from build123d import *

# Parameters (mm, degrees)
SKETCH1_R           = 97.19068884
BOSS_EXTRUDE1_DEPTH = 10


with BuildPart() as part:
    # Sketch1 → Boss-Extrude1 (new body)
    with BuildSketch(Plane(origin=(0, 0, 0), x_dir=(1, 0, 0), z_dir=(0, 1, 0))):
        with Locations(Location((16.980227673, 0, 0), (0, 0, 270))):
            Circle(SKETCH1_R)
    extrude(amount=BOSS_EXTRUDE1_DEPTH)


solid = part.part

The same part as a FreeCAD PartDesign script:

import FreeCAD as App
import Part
import Sketcher

V = App.Vector

doc = App.newDocument("Part")
body = doc.addObject("PartDesign::Body", "Body")

# Sketch on XZ plane
sketch1 = body.newObject("Sketcher::SketchObject", "Sketch")
sketch1.AttachmentSupport = (doc.getObject("XZ_Plane"), [""])
sketch1.MapMode = "FlatFace"
sketch1.addGeometry(Part.Circle(V(16.980228, 0, 0), V(0, 0, 1), 97.190689), False)
sketch1.addConstraint(Sketcher.Constraint("PointOnObject", 0, 3, -1))
sketch1.addConstraint(Sketcher.Constraint("Diameter", 0, 194.381378))
sketch1.addConstraint(Sketcher.Constraint("DistanceX", -1, 1, 0, 3, 16.980228))
pad1 = body.newObject("PartDesign::Pad", "Pad")
pad1.Profile = sketch1
pad1.Length = 10
pad1.Reversed = True

doc.recompute()
